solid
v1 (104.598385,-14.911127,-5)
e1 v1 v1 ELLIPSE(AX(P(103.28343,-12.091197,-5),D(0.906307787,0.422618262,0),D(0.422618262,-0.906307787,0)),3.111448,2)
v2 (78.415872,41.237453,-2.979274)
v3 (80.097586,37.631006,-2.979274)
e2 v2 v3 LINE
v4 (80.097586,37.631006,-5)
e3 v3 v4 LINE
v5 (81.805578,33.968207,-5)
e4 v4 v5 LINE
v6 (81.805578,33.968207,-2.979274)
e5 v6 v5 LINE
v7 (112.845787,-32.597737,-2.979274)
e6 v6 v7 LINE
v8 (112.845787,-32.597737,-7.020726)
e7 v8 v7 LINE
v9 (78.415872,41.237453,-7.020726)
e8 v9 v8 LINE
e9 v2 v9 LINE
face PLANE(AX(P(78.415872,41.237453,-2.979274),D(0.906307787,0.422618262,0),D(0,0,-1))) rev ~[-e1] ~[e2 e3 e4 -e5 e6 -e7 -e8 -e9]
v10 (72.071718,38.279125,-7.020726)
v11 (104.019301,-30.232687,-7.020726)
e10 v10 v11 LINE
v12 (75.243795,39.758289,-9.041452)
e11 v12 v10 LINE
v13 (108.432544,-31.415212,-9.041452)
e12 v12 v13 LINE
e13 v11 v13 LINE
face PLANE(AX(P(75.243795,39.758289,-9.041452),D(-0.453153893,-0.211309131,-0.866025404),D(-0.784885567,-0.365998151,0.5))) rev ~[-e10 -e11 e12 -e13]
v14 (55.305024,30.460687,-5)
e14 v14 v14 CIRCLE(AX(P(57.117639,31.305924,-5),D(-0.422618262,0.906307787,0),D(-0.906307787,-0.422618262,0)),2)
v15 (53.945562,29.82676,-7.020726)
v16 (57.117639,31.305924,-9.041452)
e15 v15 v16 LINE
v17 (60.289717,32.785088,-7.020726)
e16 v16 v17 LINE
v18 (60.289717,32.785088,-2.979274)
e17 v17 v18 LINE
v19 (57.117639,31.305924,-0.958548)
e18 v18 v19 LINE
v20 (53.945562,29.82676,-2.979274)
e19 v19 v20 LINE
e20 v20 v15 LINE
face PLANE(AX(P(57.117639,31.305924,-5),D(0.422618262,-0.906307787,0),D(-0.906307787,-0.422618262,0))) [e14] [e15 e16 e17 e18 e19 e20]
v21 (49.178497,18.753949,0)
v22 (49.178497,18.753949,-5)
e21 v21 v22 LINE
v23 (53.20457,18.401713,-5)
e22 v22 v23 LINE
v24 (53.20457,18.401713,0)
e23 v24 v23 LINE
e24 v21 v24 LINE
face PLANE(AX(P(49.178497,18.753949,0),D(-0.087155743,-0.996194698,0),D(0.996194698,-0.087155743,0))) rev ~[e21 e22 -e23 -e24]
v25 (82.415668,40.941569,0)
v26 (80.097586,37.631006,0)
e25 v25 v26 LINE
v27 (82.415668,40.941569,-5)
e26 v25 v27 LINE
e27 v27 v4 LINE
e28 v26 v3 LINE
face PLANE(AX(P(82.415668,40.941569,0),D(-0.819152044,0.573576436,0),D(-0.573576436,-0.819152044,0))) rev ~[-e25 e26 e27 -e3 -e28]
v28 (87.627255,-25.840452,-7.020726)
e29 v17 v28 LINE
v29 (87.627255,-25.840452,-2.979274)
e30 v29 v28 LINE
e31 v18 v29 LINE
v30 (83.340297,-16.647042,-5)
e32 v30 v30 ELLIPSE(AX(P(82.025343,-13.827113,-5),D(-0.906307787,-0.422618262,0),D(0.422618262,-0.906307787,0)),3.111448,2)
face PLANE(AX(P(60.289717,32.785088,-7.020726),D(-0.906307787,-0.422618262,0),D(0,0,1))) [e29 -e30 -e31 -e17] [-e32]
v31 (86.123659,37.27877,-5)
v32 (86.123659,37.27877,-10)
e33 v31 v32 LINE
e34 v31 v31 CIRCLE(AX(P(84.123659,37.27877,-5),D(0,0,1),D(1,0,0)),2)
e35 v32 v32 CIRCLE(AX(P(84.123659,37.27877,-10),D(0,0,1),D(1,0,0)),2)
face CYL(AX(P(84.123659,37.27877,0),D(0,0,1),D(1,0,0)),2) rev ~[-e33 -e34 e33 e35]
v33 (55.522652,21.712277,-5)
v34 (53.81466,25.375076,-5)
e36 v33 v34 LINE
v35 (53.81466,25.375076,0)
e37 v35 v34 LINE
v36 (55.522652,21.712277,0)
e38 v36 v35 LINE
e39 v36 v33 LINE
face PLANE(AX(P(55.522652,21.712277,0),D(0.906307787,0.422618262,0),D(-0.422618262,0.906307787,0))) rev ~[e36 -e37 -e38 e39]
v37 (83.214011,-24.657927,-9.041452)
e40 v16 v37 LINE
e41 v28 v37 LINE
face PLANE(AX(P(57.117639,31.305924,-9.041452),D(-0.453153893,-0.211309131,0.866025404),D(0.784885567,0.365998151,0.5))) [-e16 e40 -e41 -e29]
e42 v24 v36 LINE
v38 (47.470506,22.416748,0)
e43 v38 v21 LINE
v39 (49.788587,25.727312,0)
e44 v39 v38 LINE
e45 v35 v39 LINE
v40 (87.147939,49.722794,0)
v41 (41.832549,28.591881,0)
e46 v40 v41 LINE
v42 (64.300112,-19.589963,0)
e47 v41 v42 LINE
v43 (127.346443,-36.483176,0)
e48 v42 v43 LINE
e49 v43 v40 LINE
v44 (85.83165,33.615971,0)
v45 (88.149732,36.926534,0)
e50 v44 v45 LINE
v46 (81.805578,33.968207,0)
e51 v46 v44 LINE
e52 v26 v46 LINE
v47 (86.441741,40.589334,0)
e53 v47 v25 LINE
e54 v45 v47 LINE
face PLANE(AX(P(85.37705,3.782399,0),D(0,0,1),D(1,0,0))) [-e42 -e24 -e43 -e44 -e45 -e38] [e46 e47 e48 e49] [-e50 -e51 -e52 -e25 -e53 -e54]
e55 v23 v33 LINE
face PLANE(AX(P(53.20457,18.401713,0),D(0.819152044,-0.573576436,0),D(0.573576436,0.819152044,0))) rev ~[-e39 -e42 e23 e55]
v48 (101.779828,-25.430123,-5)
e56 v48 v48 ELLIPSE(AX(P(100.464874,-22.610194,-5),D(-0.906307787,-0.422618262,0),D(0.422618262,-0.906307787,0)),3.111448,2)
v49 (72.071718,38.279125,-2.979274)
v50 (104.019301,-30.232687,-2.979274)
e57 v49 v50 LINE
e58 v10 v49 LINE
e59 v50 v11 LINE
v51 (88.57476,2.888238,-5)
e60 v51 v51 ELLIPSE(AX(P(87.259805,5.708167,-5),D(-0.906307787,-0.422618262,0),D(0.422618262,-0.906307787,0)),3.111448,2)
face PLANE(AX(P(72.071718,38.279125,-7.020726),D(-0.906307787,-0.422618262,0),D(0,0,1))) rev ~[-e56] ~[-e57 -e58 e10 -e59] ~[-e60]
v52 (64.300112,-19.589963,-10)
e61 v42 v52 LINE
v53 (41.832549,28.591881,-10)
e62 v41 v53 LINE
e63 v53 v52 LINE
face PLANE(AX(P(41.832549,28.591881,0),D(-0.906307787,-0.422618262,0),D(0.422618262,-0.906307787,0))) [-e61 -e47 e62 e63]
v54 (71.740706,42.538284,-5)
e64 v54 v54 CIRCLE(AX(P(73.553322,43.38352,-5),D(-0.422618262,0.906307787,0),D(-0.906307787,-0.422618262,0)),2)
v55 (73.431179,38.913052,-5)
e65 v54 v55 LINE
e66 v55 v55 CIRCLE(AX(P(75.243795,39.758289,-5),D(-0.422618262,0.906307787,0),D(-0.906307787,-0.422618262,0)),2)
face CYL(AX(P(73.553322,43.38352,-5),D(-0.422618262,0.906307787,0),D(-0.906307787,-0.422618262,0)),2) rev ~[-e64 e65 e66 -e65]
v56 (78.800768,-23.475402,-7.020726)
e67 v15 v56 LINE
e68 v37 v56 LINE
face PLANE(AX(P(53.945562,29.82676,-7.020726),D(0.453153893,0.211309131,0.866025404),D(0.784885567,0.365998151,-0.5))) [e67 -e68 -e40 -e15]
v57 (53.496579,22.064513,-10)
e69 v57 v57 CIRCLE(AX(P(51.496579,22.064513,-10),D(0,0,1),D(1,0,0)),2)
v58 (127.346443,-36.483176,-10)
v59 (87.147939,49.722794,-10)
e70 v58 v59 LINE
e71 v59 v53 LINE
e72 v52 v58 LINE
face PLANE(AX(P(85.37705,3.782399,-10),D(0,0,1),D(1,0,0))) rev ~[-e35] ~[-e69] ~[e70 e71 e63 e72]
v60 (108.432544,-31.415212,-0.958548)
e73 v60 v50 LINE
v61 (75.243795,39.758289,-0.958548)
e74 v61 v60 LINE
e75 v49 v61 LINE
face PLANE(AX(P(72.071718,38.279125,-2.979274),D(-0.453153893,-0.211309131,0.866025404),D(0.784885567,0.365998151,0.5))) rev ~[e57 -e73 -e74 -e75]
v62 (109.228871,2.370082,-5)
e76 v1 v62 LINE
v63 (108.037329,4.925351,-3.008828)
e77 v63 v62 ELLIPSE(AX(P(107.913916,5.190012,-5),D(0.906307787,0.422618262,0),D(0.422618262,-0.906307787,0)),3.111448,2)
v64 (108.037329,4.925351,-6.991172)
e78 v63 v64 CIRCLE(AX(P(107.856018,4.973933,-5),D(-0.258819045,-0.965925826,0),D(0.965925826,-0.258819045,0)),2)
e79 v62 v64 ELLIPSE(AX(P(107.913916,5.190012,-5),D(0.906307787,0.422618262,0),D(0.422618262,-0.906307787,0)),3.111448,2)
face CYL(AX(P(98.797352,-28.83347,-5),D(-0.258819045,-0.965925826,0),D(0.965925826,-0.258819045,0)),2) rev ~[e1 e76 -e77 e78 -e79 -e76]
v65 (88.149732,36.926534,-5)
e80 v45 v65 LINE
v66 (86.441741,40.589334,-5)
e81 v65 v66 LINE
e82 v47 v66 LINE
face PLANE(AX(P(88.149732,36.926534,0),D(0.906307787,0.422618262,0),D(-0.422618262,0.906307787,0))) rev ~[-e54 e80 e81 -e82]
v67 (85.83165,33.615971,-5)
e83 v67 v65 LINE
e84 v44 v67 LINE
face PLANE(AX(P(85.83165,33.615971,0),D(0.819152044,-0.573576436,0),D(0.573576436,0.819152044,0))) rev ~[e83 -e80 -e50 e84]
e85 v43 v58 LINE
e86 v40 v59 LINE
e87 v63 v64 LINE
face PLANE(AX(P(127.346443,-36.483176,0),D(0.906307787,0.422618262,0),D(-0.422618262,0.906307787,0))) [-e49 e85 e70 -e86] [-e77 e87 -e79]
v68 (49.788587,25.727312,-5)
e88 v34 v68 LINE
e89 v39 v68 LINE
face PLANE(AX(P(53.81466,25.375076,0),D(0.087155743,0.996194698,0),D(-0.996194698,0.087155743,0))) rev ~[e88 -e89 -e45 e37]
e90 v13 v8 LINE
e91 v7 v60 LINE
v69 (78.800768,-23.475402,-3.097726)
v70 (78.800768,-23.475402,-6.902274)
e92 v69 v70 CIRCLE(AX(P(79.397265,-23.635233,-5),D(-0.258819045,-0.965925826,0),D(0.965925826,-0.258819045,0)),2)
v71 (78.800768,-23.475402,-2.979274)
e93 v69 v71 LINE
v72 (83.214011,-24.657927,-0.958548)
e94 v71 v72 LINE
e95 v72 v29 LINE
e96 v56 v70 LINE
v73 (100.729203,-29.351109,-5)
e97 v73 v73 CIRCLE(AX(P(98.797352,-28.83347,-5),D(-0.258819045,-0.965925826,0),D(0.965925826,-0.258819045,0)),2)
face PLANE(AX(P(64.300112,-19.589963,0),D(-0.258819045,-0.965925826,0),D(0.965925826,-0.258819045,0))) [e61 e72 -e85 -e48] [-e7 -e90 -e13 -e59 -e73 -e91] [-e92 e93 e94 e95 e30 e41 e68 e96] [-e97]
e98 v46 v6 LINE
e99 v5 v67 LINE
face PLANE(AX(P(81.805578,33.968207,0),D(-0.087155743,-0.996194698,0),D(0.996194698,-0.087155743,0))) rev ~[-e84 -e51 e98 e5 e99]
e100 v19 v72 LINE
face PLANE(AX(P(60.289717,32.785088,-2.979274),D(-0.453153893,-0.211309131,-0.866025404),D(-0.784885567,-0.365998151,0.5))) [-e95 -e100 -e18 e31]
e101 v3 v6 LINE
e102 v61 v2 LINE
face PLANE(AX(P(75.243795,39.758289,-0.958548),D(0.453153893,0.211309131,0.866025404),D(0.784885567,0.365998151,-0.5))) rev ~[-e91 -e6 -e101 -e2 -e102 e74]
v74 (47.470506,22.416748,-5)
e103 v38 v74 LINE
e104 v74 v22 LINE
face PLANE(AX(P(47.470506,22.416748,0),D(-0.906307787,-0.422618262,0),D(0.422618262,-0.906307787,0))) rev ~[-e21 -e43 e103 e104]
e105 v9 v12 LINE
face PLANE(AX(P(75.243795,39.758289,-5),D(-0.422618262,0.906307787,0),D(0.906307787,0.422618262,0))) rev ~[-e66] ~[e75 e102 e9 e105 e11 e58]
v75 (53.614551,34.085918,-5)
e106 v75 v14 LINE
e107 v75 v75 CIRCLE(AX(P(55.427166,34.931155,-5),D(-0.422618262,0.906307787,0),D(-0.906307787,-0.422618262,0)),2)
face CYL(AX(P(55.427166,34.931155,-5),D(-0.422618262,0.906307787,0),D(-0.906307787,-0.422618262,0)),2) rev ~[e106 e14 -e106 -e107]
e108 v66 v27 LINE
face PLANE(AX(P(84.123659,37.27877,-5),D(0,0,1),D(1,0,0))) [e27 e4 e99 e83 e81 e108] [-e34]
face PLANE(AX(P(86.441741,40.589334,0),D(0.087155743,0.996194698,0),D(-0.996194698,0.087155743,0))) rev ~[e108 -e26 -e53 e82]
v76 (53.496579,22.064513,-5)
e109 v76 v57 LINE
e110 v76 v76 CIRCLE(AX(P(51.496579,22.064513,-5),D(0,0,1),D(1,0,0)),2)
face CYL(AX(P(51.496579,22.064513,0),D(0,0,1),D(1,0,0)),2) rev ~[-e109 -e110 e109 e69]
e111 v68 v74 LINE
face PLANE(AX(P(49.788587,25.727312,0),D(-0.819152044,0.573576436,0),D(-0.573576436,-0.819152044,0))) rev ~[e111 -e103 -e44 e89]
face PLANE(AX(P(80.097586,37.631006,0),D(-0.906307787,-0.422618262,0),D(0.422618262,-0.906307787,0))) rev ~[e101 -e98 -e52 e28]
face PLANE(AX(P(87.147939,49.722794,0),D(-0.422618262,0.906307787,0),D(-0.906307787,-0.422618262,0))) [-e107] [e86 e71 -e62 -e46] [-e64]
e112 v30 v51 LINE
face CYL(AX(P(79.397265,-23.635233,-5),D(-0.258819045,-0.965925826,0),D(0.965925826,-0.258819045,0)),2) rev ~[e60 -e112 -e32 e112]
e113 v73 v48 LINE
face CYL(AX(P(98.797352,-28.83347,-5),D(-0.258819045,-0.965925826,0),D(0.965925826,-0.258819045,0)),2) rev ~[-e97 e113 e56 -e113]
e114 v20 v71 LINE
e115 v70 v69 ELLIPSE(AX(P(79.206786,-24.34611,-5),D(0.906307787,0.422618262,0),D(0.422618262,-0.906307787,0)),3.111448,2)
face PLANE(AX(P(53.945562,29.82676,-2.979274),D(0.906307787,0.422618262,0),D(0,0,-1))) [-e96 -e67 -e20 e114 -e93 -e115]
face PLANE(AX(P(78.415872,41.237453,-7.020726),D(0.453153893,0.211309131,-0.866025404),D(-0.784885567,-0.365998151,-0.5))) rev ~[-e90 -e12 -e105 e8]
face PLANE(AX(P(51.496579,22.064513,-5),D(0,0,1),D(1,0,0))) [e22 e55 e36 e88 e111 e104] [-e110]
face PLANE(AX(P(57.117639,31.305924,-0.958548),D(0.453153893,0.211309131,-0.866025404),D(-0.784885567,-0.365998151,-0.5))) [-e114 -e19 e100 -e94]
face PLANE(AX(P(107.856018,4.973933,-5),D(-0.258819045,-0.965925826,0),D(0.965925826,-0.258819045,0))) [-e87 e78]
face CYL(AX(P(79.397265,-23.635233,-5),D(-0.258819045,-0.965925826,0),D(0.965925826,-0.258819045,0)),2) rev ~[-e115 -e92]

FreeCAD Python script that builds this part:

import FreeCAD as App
import Part
import Sketcher
from FreeCAD import Vector
Q = App.Units.Quantity


def add_polygon(sketch, points):
    """Adds a closed chain of lines whose ends are joined by coincident constraints."""
    first, n = sketch.GeometryCount, len(points)
    for a, b in zip(points, points[1:] + points[:1]):
        sketch.addGeometry(Part.LineSegment(App.Vector(*a, 0), App.Vector(*b, 0)), False)
    for i in range(n):
        sketch.addConstraint(Sketcher.Constraint("Coincident", first + i, 2, first + (i + 1) % n, 1))

doc = App.newDocument("Part")
body = doc.addObject("PartDesign::Body", "Body")

# Sketch on XY plane
sketch1 = doc.addObject("Sketcher::SketchObject", "Sketch")
body.addObject(sketch1)
sketch1.AttachmentSupport = (doc.XY_Plane, [""])
sketch1.MapMode = "FlatFace"
add_polygon(sketch1, [(127, -36), (87, 50), (42, 29), (64, -20)])  # lines 0-3
sketch1.addConstraint([
    Sketcher.Constraint("Perpendicular", 0, 1),
    Sketcher.Constraint("Perpendicular", 1, 2),
    Sketcher.Constraint("Angle", 0, Q("115 deg")),
    Sketcher.Constraint("Angle", 3, Q("-15 deg")),
    Sketcher.Constraint("Distance", 1, 50.0),
    Sketcher.Constraint("DistanceX", -1, 1, 0, 2, 87.147939),
    Sketcher.Constraint("DistanceY", -1, 1, 1, 2, 28.591881),
    Sketcher.Constraint("DistanceY", 3, 2, 0, 2, 86.20597),
])
pad1 = doc.addObject("PartDesign::Pad", "Pad")
body.addObject(pad1)
pad1.Profile = sketch1
pad1.Length = 10
pad1.Reversed = True

# Sketch on an angled plane
sketch2 = doc.addObject("Sketcher::SketchObject", "Sketch001")
body.addObject(sketch2)
sketch2.Placement = App.Placement(Vector(-3.479773, 7.462398, 0), App.Rotation(Vector(0.906307787, 0.422618262, 0), Vector(0, 0, -1), Vector(-0.422618262, 0.906307787, 0), "ZXY"))
sketch2.addGeometry([
    Part.Circle(Vector(65, 5, 0), Vector(0, 0, 1), 2),
    Part.Circle(Vector(85, 5, 0), Vector(0, 0, 1), 2),
], False)
sketch2.addConstraint([
    Sketcher.Constraint("Equal", 0, 1),
    Sketcher.Constraint("Horizontal", 0, 3, 1, 3),
    Sketcher.Constraint("Diameter", 0, 4.0),
    Sketcher.Constraint("DistanceY", -1, 1, 0, 3, 5.0),
    Sketcher.Constraint("DistanceX", 0, 3, 1, 3, 20.0),
    Sketcher.Constraint("DistanceX", -1, 1, 0, 3, 64.996616),
])
pocket1 = doc.addObject("PartDesign::Pocket", "Pocket")
body.addObject(pocket1)
pocket1.Profile = sketch2
pocket1.Type = "ThroughAll"

# Sketch on an angled plane
sketch3 = doc.addObject("Sketcher::SketchObject", "Sketch002")
body.addObject(sketch3)
sketch3.Placement = App.Placement(Vector(-1.7893, 3.837167, 0), App.Rotation(Vector(0.906307787, 0.422618262, 0), Vector(0, 0, -1), Vector(-0.422618262, 0.906307787, 0), "ZXY"))
add_polygon(sketch3, [(85, 1), (88.5, 3), (88.5, 7), (85, 9), (81.5, 7), (81.5, 3)])  # lines 0-5
sketch3.addGeometry(Part.Circle(Vector(85, 5, 0), Vector(0, 0, 1), 2), False)  # 6
add_polygon(sketch3, [(65, 1), (68.5, 3), (68.5, 7), (65, 9), (61.5, 7), (61.5, 3)])  # lines 7-12
sketch3.addGeometry(Part.Circle(Vector(65, 5, 0), Vector(0, 0, 1), 2), False)  # 13
sketch3.addConstraint([
    Sketcher.Constraint("Vertical", 1),
    Sketcher.Constraint("Vertical", 4),
    Sketcher.Constraint("Vertical", 8),
    Sketcher.Constraint("Vertical", 11),
    Sketcher.Constraint("Equal", 6, 13),
    Sketcher.Constraint("Parallel", 0, 3),
    Sketcher.Constraint("Parallel", 2, 5),
    Sketcher.Constraint("Parallel", 3, 7),
    Sketcher.Constraint("Parallel", 5, 9),
    Sketcher.Constraint("Parallel", 7, 10),
    Sketcher.Constraint("Parallel", 9, 12),
    Sketcher.Constraint("Horizontal", 6, 3, 13, 3),
    Sketcher.Constraint("Horizontal", 1, 2, 3, 2),
    Sketcher.Constraint("Horizontal", 0, 2, 4, 2),
    Sketcher.Constraint("Horizontal", 4, 2, 7, 2),
    Sketcher.Constraint("Horizontal", 3, 2, 8, 2),
    Sketcher.Constraint("Horizontal", 2, 2, 9, 2),
    Sketcher.Constraint("Horizontal", 8, 2, 10, 2),
    Sketcher.Constraint("Horizontal", 7, 2, 11, 2),
    Sketcher.Constraint("Vertical", 6, 3, 2, 2),
    Sketcher.Constraint("Vertical", 2, 2, 5, 2),
    Sketcher.Constraint("Vertical", 13, 3, 9, 2),
    Sketcher.Constraint("Diameter", 6, 4.0),
    Sketcher.Constraint("Angle", 0, Q("30 deg")),
    Sketcher.Constraint("DistanceY", -1, 1, 6, 3, 5.0),
    Sketcher.Constraint("DistanceX", 13, 3, 6, 3, 20.0),
    Sketcher.Constraint("DistanceX", 3, 2, 1, 2, 7.0),
    Sketcher.Constraint("DistanceY", 1, 1, 1, 2, 4.041452),
    Sketcher.Constraint("DistanceY", -1, 1, 2, 2, 9.041452),
    Sketcher.Constraint("DistanceX", -1, 1, 6, 3, 84.996616),
])
pocket2 = doc.addObject("PartDesign::Pocket", "Pocket001")
body.addObject(pocket2)
pocket2.Profile = sketch3
pocket2.Length = 135.371646

# Sketch on an angled plane
sketch4 = doc.addObject("Sketcher::SketchObject", "Sketch003")
body.addObject(sketch4)
sketch4.Placement = App.Placement(Vector(-0.5902, -2.202656, 0), App.Rotation(Vector(0.965925826, -0.258819045, 0), Vector(0, 0, 0.999999999), Vector(-0.258819045, -0.965925826, 0), "ZXY"))
sketch4.addGeometry([
    Part.Circle(Vector(82.8, -5, 0), Vector(0, 0, 1), 2),
    Part.Circle(Vector(102.9, -5, 0), Vector(0, 0, 1), 2),
], False)
sketch4.addConstraint([
    Sketcher.Constraint("Equal", 0, 1),
    Sketcher.Constraint("Horizontal", 0, 3, 1, 3),
    Sketcher.Constraint("Diameter", 0, 4.0),
    Sketcher.Constraint("DistanceY", 0, 3, -1, 1, 5.0),
    Sketcher.Constraint("DistanceX", -1, 1, 0, 3, 82.809117),
    Sketcher.Constraint("DistanceX", -1, 1, 1, 3, 102.893565),
])
pocket3 = doc.addObject("PartDesign::Pocket", "Pocket002")
body.addObject(pocket3)
pocket3.Profile = sketch4
pocket3.Length = 35

# Sketch on XY plane
sketch5 = doc.addObject("Sketcher::SketchObject", "Sketch004")
body.addObject(sketch5)
sketch5.AttachmentSupport = (doc.XY_Plane, [""])
sketch5.MapMode = "FlatFace"
sketch5.addGeometry([
    Part.Circle(Vector(84.1, 37.3, 0), Vector(0, 0, 1), 2),
    Part.Circle(Vector(51.5, 22.1, 0), Vector(0, 0, 1), 2),
], False)
sketch5.addConstraint([
    Sketcher.Constraint("Equal", 0, 1),
    Sketcher.Constraint("Diameter", 0, 4.0),
    Sketcher.Constraint("DistanceX", -1, 1, 0, 3, 84.123659),
    Sketcher.Constraint("DistanceY", -1, 1, 0, 3, 37.27877),
    Sketcher.Constraint("DistanceX", -1, 1, 1, 3, 51.496579),
    Sketcher.Constraint("DistanceY", -1, 1, 1, 3, 22.064513),
])
pocket4 = doc.addObject("PartDesign::Pocket", "Pocket003")
body.addObject(pocket4)
pocket4.Profile = sketch5
pocket4.Length = 10

# Sketch on XY plane
sketch6 = doc.addObject("Sketcher::SketchObject", "Sketch005")
body.addObject(sketch6)
sketch6.AttachmentSupport = (doc.XY_Plane, [""])
sketch6.MapMode = "FlatFace"
add_polygon(sketch6, [(88.1, 36.9), (86.4, 40.6), (82.4, 40.9), (80.1, 37.6), (81.8, 34), (85.8, 33.6)])  # lines 0-5
sketch6.addGeometry(Part.Circle(Vector(84.1, 37.3, 0), Vector(0, 0, 1), 2), False)  # 6
add_polygon(sketch6, [(55.5, 21.7), (53.8, 25.4), (49.8, 25.7), (47.5, 22.4), (49.2, 18.8), (53.2, 18.4)])  # lines 7-12
sketch6.addGeometry(Part.Circle(Vector(51.5, 22.1, 0), Vector(0, 0, 1), 2), False)  # 13
sketch6.addConstraint([
    Sketcher.Constraint("Equal", 6, 13),
    Sketcher.Constraint("Parallel", 0, 3),
    Sketcher.Constraint("Parallel", 1, 4),
    Sketcher.Constraint("Parallel", 2, 5),
    Sketcher.Constraint("Parallel", 3, 7),
    Sketcher.Constraint("Parallel", 4, 8),
    Sketcher.Constraint("Parallel", 5, 9),
    Sketcher.Constraint("Parallel", 7, 10),
    Sketcher.Constraint("Parallel", 8, 11),
    Sketcher.Constraint("Parallel", 9, 12),
    Sketcher.Constraint("Equal", 0, 1),
    Sketcher.Constraint("Equal", 1, 2),
    Sketcher.Constraint("Equal", 2, 3),
    Sketcher.Constraint("Equal", 5, 7),
    Sketcher.Constraint("Equal", 7, 8),
    Sketcher.Constraint("Equal", 8, 9),
    Sketcher.Constraint("Equal", 9, 10),
    Sketcher.Constraint("Diameter", 6, 4.0),
    Sketcher.Constraint("Angle", 0, Q("115 deg")),
    Sketcher.Constraint("Angle", 1, Q("175 deg")),
    Sketcher.Constraint("Angle", 2, Q("-125 deg")),
    Sketcher.Constraint("DistanceX", 13, 3, 3, 2, 30.308999),
    Sketcher.Constraint("DistanceX", 7, 2, 6, 3, 30.308999),
    Sketcher.Constraint("DistanceX", 8, 2, 2, 2, 30.308999),
    Sketcher.Constraint("DistanceY", 6, 3, 1, 2, 3.662799),
    Sketcher.Constraint("DistanceY", 3, 2, 2, 2, 3.662799),
    Sketcher.Constraint("DistanceY", 13, 3, 8, 2, 3.662799),
    Sketcher.Constraint("DistanceX", -1, 1, 6, 3, 84.123659),
    Sketcher.Constraint("DistanceY", -1, 1, 6, 3, 37.27877),
    Sketcher.Constraint("DistanceY", -1, 1, 8, 2, 25.727312),
])
pocket5 = doc.addObject("PartDesign::Pocket", "Pocket004")
body.addObject(pocket5)
pocket5.Profile = sketch6
pocket5.Length = 5

doc.recompute()
